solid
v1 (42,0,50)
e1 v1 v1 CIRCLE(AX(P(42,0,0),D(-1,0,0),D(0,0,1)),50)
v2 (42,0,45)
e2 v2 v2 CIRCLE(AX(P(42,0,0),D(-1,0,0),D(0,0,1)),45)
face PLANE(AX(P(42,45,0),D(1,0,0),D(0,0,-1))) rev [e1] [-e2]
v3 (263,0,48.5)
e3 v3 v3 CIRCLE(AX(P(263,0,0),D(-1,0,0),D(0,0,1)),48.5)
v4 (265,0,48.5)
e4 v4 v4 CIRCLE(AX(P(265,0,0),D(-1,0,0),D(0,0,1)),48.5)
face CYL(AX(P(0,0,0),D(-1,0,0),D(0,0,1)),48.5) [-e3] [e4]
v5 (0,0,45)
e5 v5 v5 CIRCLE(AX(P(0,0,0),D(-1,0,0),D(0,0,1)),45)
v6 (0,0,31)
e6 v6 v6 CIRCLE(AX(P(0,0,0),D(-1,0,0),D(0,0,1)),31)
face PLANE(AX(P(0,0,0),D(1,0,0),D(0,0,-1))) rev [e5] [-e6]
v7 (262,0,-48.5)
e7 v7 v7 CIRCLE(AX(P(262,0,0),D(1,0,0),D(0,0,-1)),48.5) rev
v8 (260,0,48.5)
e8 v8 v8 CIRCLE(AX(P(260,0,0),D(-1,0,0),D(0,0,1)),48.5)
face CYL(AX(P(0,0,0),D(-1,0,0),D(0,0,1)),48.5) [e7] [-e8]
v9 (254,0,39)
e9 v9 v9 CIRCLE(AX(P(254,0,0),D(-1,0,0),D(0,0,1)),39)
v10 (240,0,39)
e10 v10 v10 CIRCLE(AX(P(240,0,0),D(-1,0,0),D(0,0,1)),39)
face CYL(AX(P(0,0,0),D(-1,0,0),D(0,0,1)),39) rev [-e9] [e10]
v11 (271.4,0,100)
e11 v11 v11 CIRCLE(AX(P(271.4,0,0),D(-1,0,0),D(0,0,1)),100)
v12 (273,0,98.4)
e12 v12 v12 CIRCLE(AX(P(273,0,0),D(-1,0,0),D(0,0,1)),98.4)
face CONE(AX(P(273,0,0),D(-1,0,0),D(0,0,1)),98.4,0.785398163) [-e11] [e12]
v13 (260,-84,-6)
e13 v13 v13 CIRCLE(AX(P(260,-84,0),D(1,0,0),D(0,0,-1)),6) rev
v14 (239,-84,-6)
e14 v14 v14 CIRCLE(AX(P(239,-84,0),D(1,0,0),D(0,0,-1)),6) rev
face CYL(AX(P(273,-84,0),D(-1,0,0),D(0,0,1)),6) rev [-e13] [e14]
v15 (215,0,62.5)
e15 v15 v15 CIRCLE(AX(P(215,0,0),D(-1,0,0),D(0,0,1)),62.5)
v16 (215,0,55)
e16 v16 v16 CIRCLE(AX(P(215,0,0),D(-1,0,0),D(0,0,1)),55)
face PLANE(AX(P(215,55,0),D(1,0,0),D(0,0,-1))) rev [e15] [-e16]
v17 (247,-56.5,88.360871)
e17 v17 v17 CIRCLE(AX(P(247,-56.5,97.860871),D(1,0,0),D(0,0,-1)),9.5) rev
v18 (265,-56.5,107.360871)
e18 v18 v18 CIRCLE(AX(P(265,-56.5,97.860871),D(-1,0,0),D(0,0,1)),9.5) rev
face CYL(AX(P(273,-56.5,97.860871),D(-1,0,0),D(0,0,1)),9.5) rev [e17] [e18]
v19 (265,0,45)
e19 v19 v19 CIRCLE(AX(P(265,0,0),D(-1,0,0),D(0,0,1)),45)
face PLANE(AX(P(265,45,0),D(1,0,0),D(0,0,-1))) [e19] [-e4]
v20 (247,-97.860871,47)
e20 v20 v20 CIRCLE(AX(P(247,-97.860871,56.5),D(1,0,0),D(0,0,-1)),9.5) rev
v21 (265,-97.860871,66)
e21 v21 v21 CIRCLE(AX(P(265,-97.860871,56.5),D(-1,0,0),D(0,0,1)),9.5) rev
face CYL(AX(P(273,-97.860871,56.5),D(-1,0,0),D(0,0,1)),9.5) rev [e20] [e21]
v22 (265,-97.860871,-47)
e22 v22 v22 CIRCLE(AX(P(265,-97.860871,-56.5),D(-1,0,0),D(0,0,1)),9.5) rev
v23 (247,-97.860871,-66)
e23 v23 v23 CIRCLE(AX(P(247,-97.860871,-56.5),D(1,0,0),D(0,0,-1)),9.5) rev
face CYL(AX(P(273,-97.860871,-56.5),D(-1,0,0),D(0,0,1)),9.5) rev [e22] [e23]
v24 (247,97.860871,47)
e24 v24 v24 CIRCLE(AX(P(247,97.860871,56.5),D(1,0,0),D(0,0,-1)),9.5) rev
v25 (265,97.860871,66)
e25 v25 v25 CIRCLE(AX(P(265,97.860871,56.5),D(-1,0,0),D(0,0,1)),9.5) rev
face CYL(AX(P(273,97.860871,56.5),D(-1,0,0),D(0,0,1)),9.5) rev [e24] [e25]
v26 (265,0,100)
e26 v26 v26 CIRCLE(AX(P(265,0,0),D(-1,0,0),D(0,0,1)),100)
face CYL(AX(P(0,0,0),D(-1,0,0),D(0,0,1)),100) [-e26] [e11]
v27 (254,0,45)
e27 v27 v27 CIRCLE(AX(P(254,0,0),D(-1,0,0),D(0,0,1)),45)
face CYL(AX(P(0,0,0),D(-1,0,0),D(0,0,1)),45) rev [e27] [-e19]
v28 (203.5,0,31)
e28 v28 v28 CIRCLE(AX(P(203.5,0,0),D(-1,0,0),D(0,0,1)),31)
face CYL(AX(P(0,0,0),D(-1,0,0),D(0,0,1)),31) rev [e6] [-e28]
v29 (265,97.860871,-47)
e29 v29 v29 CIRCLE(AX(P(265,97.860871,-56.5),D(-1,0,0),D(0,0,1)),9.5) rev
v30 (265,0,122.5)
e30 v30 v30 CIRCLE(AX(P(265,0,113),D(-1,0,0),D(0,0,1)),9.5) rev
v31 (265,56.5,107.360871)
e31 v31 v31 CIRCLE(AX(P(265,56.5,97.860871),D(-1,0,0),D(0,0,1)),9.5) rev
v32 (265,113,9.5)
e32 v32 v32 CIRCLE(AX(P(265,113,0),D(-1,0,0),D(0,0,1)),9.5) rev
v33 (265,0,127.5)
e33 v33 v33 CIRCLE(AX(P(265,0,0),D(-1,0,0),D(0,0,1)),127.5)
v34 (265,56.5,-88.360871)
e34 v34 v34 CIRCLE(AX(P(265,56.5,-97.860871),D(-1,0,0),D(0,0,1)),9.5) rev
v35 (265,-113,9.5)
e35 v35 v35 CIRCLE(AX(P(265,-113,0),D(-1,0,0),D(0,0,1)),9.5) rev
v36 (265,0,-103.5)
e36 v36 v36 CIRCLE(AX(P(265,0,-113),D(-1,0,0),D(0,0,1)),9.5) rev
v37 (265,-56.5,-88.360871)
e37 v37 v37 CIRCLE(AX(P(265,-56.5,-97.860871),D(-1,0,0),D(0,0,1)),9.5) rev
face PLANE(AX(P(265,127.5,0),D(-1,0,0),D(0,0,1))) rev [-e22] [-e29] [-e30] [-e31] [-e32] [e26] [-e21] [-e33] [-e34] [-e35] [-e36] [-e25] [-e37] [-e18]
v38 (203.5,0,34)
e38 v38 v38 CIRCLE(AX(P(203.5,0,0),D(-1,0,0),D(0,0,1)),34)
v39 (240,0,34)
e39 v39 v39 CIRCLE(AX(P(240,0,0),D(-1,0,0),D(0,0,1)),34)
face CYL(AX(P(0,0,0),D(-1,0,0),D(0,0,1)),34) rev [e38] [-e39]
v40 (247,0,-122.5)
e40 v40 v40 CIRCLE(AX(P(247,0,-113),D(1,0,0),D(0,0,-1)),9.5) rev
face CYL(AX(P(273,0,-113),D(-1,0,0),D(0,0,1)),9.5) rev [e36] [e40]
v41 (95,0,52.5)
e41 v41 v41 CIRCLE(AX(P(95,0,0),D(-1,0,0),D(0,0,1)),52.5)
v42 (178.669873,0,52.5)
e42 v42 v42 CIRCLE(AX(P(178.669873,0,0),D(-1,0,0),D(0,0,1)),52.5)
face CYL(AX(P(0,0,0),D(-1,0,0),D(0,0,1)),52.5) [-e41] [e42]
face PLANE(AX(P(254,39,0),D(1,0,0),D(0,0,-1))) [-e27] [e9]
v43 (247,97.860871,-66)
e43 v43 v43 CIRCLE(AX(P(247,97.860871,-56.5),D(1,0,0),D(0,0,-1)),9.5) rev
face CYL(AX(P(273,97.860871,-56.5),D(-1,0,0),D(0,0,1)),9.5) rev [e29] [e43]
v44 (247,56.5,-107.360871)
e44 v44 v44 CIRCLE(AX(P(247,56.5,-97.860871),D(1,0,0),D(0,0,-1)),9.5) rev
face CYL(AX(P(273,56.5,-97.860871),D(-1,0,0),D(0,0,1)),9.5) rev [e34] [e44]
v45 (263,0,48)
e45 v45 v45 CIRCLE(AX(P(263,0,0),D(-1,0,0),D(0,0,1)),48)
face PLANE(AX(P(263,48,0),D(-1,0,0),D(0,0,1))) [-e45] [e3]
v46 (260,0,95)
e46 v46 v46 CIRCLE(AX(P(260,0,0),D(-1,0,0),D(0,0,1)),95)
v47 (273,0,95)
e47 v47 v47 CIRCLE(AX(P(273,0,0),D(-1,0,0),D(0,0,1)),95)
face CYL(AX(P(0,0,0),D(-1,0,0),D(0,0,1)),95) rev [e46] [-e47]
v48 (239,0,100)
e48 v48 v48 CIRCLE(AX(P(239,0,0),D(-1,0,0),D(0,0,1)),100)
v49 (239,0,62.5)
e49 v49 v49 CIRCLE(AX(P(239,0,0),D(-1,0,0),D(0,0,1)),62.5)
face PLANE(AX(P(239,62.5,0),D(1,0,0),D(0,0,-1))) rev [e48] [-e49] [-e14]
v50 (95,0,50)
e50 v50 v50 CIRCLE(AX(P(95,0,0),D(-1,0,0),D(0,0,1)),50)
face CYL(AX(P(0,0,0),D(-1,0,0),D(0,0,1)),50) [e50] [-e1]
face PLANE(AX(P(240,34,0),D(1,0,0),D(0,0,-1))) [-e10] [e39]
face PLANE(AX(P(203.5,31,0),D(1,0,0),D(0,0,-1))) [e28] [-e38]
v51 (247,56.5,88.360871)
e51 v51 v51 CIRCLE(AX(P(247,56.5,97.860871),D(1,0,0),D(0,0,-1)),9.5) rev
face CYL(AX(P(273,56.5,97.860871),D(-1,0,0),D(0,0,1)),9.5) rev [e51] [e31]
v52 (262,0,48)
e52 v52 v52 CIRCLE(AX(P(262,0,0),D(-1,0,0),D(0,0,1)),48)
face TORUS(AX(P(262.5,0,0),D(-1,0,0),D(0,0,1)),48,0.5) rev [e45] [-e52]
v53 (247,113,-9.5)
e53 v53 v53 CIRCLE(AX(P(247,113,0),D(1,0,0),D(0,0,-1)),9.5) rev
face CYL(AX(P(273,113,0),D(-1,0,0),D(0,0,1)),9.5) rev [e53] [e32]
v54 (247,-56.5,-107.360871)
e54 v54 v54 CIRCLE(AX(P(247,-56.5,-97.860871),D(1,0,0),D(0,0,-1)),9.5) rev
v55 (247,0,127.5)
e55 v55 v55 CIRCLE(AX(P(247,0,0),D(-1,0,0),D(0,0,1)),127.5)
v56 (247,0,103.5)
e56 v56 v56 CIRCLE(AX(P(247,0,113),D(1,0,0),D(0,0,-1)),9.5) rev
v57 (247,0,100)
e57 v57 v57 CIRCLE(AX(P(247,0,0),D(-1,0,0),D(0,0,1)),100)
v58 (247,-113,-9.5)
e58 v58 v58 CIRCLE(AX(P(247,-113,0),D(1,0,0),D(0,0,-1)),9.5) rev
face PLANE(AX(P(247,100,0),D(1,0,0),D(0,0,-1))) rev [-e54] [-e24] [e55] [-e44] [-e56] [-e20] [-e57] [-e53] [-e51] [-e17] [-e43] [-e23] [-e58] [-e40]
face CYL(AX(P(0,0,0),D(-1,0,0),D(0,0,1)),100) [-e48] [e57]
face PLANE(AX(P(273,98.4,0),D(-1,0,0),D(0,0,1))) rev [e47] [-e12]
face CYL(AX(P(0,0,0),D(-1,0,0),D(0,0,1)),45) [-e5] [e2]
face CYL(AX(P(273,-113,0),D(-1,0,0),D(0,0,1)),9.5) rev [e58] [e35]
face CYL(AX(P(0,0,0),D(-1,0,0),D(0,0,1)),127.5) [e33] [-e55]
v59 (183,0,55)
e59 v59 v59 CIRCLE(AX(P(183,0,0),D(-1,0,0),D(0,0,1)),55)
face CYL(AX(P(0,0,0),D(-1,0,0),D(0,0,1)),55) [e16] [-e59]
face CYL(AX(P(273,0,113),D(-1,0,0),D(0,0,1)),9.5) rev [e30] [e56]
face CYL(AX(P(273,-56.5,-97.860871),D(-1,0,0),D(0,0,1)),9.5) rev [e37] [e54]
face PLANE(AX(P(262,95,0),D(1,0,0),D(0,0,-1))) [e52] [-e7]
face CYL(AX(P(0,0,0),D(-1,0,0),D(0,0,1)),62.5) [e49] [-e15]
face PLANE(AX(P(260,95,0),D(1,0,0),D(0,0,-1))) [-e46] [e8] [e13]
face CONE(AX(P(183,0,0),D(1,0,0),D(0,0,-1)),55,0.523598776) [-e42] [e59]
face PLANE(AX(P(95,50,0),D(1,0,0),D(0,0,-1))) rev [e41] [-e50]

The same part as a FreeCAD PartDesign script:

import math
import FreeCAD as App
import Part
import Sketcher
from FreeCAD import Vector
Q = App.Units.Quantity

doc = App.newDocument("Part")
body = doc.addObject("PartDesign::Body", "Body")

# Sketch on XY plane
sketch1 = doc.addObject("Sketcher::SketchObject", "Sketch")
body.addObject(sketch1)
sketch1.AttachmentSupport = (doc.XY_Plane, [""])
sketch1.MapMode = "FlatFace"
sketch1.addGeometry([
    Part.LineSegment(Vector(0, 0, 0), Vector(273, 0, 0)),  # 0
    Part.LineSegment(Vector(273, 0, 0), Vector(273, 98.4, 0)),  # 1
    Part.LineSegment(Vector(273, 98.4, 0), Vector(271.4, 100, 0)),  # 2
    Part.LineSegment(Vector(271.4, 100, 0), Vector(265, 100, 0)),  # 3
    Part.LineSegment(Vector(265, 100, 0), Vector(265, 127.5, 0)),  # 4
    Part.LineSegment(Vector(265, 127.5, 0), Vector(247, 127.5, 0)),  # 5
    Part.LineSegment(Vector(247, 127.5, 0), Vector(247, 100, 0)),  # 6
    Part.LineSegment(Vector(247, 100, 0), Vector(239, 100, 0)),  # 7
    Part.LineSegment(Vector(239, 100, 0), Vector(239, 62.5, 0)),  # 8
    Part.LineSegment(Vector(239, 62.5, 0), Vector(215, 62.5, 0)),  # 9
    Part.LineSegment(Vector(215, 62.5, 0), Vector(215, 55, 0)),  # 10
    Part.LineSegment(Vector(215, 55, 0), Vector(183, 55, 0)),  # 11
    Part.LineSegment(Vector(183, 55, 0), Vector(178.7, 52.5, 0)),  # 12
    Part.LineSegment(Vector(178.7, 52.5, 0), Vector(95, 52.5, 0)),  # 13
    Part.LineSegment(Vector(95, 52.5, 0), Vector(95, 50, 0)),  # 14
    Part.LineSegment(Vector(95, 50, 0), Vector(42, 50, 0)),  # 15
    Part.LineSegment(Vector(42, 50, 0), Vector(42, 45, 0)),  # 16
    Part.LineSegment(Vector(42, 45, 0), Vector(0, 45, 0)),  # 17
    Part.LineSegment(Vector(0, 45, 0), Vector(0, 0, 0)),  # 18
], False)
sketch1.addConstraint([
    Sketcher.Constraint("Coincident", 0, 2, 1, 1),
    Sketcher.Constraint("Coincident", 1, 2, 2, 1),
    Sketcher.Constraint("Coincident", 2, 2, 3, 1),
    Sketcher.Constraint("Coincident", 3, 2, 4, 1),
    Sketcher.Constraint("Coincident", 4, 2, 5, 1),
    Sketcher.Constraint("Coincident", 5, 2, 6, 1),
    Sketcher.Constraint("Coincident", 6, 2, 7, 1),
    Sketcher.Constraint("Coincident", 7, 2, 8, 1),
    Sketcher.Constraint("Coincident", 8, 2, 9, 1),
    Sketcher.Constraint("Coincident", 9, 2, 10, 1),
    Sketcher.Constraint("Coincident", 10, 2, 11, 1),
    Sketcher.Constraint("Coincident", 11, 2, 12, 1),
    Sketcher.Constraint("Coincident", 12, 2, 13, 1),
    Sketcher.Constraint("Coincident", 13, 2, 14, 1),
    Sketcher.Constraint("Coincident", 14, 2, 15, 1),
    Sketcher.Constraint("Coincident", 15, 2, 16, 1),
    Sketcher.Constraint("Coincident", 16, 2, 17, 1),
    Sketcher.Constraint("Coincident", 17, 2, 18, 1),
    Sketcher.Constraint("Coincident", 18, 2, 0, 1),
    Sketcher.Constraint("Horizontal", 0),
    Sketcher.Constraint("Vertical", 1),
    Sketcher.Constraint("Horizontal", 3),
    Sketcher.Constraint("Vertical", 4),
    Sketcher.Constraint("Horizontal", 5),
    Sketcher.Constraint("Vertical", 6),
    Sketcher.Constraint("Horizontal", 7),
    Sketcher.Constraint("Vertical", 8),
    Sketcher.Constraint("Horizontal", 9),
    Sketcher.Constraint("Vertical", 10),
    Sketcher.Constraint("Horizontal", 11),
    Sketcher.Constraint("Horizontal", 13),
    Sketcher.Constraint("Vertical", 14),
    Sketcher.Constraint("Horizontal", 15),
    Sketcher.Constraint("Vertical", 16),
    Sketcher.Constraint("Horizontal", 17),
    Sketcher.Constraint("Vertical", 18),
    Sketcher.Constraint("Coincident", 18, 2, -1, 1),
    Sketcher.Constraint("Horizontal", 3, 2, 6, 2),
    Sketcher.Constraint("DistanceX", 0, 1, 0, 2, Q("273 mm")),
    Sketcher.Constraint("DistanceX", 5, 2, 5, 1, Q("18 mm")),
    Sketcher.Constraint("DistanceX", 7, 2, 7, 1, Q("8 mm")),
    Sketcher.Constraint("DistanceX", 9, 2, 9, 1, Q("24 mm")),
    Sketcher.Constraint("DistanceX", 11, 2, 11, 1, Q("32 mm")),
    Sketcher.Constraint("DistanceX", 15, 2, 15, 1, Q("53 mm")),
    Sketcher.Constraint("DistanceX", 17, 2, 17, 1, Q("42 mm")),
    Sketcher.Constraint("DistanceY", 16, 2, 16, 1, Q("5 mm")),
    Sketcher.Constraint("DistanceY", 18, 2, 18, 1, Q("45 mm")),
    Sketcher.Constraint("Angle", 2, Q("135 deg")),
    Sketcher.Constraint("Angle", 12, Q("-150 deg")),
    Sketcher.Constraint("Distance", 12, Q("5 mm")),
    Sketcher.Constraint("DistanceX", 3, 2, 3, 1, Q("6.4 mm")),
    Sketcher.Constraint("DistanceY", 1, 1, 1, 2, Q("98.4 mm")),
    Sketcher.Constraint("DistanceY", 4, 1, 4, 2, Q("27.5 mm")),
    Sketcher.Constraint("DistanceY", 8, 2, 8, 1, Q("37.5 mm")),
    Sketcher.Constraint("DistanceY", 10, 2, 10, 1, Q("7.5 mm")),
    Sketcher.Constraint("DistanceY", 14, 2, 14, 1, Q("2.5 mm")),
])
revolution = doc.addObject("PartDesign::Revolution", "Revolution")
body.addObject(revolution)
revolution.Profile = sketch1
revolution.ReferenceAxis = (sketch1, ["H_Axis"])
revolution.Angle = 360

# Sketch on XY plane
sketch2 = doc.addObject("Sketcher::SketchObject", "Sketch001")
body.addObject(sketch2)
sketch2.AttachmentSupport = (doc.XY_Plane, [""])
sketch2.MapMode = "FlatFace"
sketch2.addGeometry([
    Part.LineSegment(Vector(0, 0, 0), Vector(273, 0, 0)),  # 0
    Part.LineSegment(Vector(273, 0, 0), Vector(273, 95, 0)),  # 1
    Part.LineSegment(Vector(273, 95, 0), Vector(265, 95, 0)),  # 2
    Part.LineSegment(Vector(265, 95, 0), Vector(265, 45, 0)),  # 3
    Part.LineSegment(Vector(265, 45, 0), Vector(254, 45, 0)),  # 4
    Part.LineSegment(Vector(254, 45, 0), Vector(254, 39, 0)),  # 5
    Part.LineSegment(Vector(254, 39, 0), Vector(240, 39, 0)),  # 6
    Part.LineSegment(Vector(240, 39, 0), Vector(240, 34, 0)),  # 7
    Part.LineSegment(Vector(240, 34, 0), Vector(203.5, 34, 0)),  # 8
    Part.LineSegment(Vector(203.5, 34, 0), Vector(203.5, 31, 0)),  # 9
    Part.LineSegment(Vector(203.5, 31, 0), Vector(0, 31, 0)),  # 10
    Part.LineSegment(Vector(0, 31, 0), Vector(0, 0, 0)),  # 11
], False)
sketch2.addConstraint([
    Sketcher.Constraint("Coincident", 0, 2, 1, 1),
    Sketcher.Constraint("Coincident", 1, 2, 2, 1),
    Sketcher.Constraint("Coincident", 2, 2, 3, 1),
    Sketcher.Constraint("Coincident", 3, 2, 4, 1),
    Sketcher.Constraint("Coincident", 4, 2, 5, 1),
    Sketcher.Constraint("Coincident", 5, 2, 6, 1),
    Sketcher.Constraint("Coincident", 6, 2, 7, 1),
    Sketcher.Constraint("Coincident", 7, 2, 8, 1),
    Sketcher.Constraint("Coincident", 8, 2, 9, 1),
    Sketcher.Constraint("Coincident", 9, 2, 10, 1),
    Sketcher.Constraint("Coincident", 10, 2, 11, 1),
    Sketcher.Constraint("Coincident", 11, 2, 0, 1),
    Sketcher.Constraint("Horizontal", 0),
    Sketcher.Constraint("Vertical", 1),
    Sketcher.Constraint("Horizontal", 2),
    Sketcher.Constraint("Vertical", 3),
    Sketcher.Constraint("Horizontal", 4),
    Sketcher.Constraint("Vertical", 5),
    Sketcher.Constraint("Horizontal", 6),
    Sketcher.Constraint("Vertical", 7),
    Sketcher.Constraint("Horizontal", 8),
    Sketcher.Constraint("Vertical", 9),
    Sketcher.Constraint("Horizontal", 10),
    Sketcher.Constraint("Vertical", 11),
    Sketcher.Constraint("Coincident", 11, 2, -1, 1),
    Sketcher.Constraint("DistanceX", 0, 1, 0, 2, Q("273 mm")),
    Sketcher.Constraint("DistanceX", 2, 2, 2, 1, Q("8 mm")),
    Sketcher.Constraint("DistanceX", 4, 2, 4, 1, Q("11 mm")),
    Sketcher.Constraint("DistanceX", 6, 2, 6, 1, Q("14 mm")),
    Sketcher.Constraint("DistanceY", 1, 1, 1, 2, Q("95 mm")),
    Sketcher.Constraint("DistanceY", 3, 2, 3, 1, Q("50 mm")),
    Sketcher.Constraint("DistanceY", 5, 2, 5, 1, Q("6 mm")),
    Sketcher.Constraint("DistanceY", 7, 2, 7, 1, Q("5 mm")),
    Sketcher.Constraint("DistanceY", 9, 2, 9, 1, Q("3 mm")),
    Sketcher.Constraint("DistanceX", 8, 2, 8, 1, Q("36.5 mm")),
])
groove = doc.addObject("PartDesign::Groove", "Groove")
body.addObject(groove)
groove.Profile = sketch2
groove.ReferenceAxis = (sketch2, ["H_Axis"])
groove.Angle = 360

# Sketch on XY plane
sketch3 = doc.addObject("Sketcher::SketchObject", "Sketch002")
body.addObject(sketch3)
sketch3.AttachmentSupport = (doc.XY_Plane, [""])
sketch3.MapMode = "FlatFace"
sketch3.addGeometry([
    Part.LineSegment(Vector(260, 95, 0), Vector(260, 48.5, 0)),
    Part.LineSegment(Vector(260, 48.5, 0), Vector(262, 48.5, 0)),
    Part.LineSegment(Vector(262, 48.5, 0), Vector(262, 95, 0)),
    Part.LineSegment(Vector(262, 95, 0), Vector(260, 95, 0)),
], False)
sketch3.addConstraint([
    Sketcher.Constraint("Coincident", 0, 2, 1, 1),
    Sketcher.Constraint("Coincident", 1, 2, 2, 1),
    Sketcher.Constraint("Coincident", 2, 2, 3, 1),
    Sketcher.Constraint("Coincident", 3, 2, 0, 1),
    Sketcher.Constraint("Vertical", 0),
    Sketcher.Constraint("Horizontal", 1),
    Sketcher.Constraint("Vertical", 2),
    Sketcher.Constraint("Horizontal", 3),
    Sketcher.Constraint("DistanceX", 1, 1, 1, 2, Q("2 mm")),
    Sketcher.Constraint("DistanceY", 0, 2, 0, 1, Q("46.5 mm")),
    Sketcher.Constraint("DistanceX", -1, 1, 0, 2, Q("260 mm")),
    Sketcher.Constraint("DistanceY", -1, 1, 2, 2, Q("95 mm")),
])
groove2 = doc.addObject("PartDesign::Groove", "Groove001")
body.addObject(groove2)
groove2.Profile = sketch3
groove2.ReferenceAxis = (sketch3, ["H_Axis"])
groove2.Angle = 360

# Sketch on XY plane
sketch4 = doc.addObject("Sketcher::SketchObject", "Sketch003")
body.addObject(sketch4)
sketch4.AttachmentSupport = (doc.XY_Plane, [""])
sketch4.MapMode = "FlatFace"
sketch4.addGeometry([
    Part.LineSegment(Vector(263, 48, 0), Vector(263, 95, 0)),  # 0
    Part.LineSegment(Vector(263, 95, 0), Vector(262, 95, 0)),  # 1
    Part.LineSegment(Vector(262, 95, 0), Vector(262, 48, 0)),  # 2
    Part.ArcOfCircle(Part.Circle(Vector(262.5, 48, 0), Vector(0, 0, 1), 0.5), math.radians(180), math.radians(270)),  # 3
    Part.ArcOfCircle(Part.Circle(Vector(262.5, 48, 0), Vector(0, 0, 1), 0.5), math.radians(-90), math.radians(0)),  # 4
], False)
sketch4.addConstraint([
    Sketcher.Constraint("Coincident", 0, 2, 1, 1),
    Sketcher.Constraint("Coincident", 1, 2, 2, 1),
    Sketcher.Constraint("Tangent", 2, 2, 3, 1),
    Sketcher.Constraint("Tangent", 3, 2, 4, 1),
    Sketcher.Constraint("Tangent", 4, 2, 0, 1),
    Sketcher.Constraint("Vertical", 0),
    Sketcher.Constraint("Horizontal", 1),
    Sketcher.Constraint("Vertical", 2),
    Sketcher.Constraint("Equal", 3, 4),
    Sketcher.Constraint("Vertical", 4, 3, 3, 2),
    Sketcher.Constraint("Radius", 3, Q("0.5 mm")),
    Sketcher.Constraint("DistanceY", 0, 1, 0, 2, Q("47 mm")),
    Sketcher.Constraint("DistanceY", -1, 1, 3, 3, Q("48 mm")),
    Sketcher.Constraint("DistanceX", -1, 1, 0, 2, Q("263 mm")),
])
groove3 = doc.addObject("PartDesign::Groove", "Groove002")
body.addObject(groove3)
groove3.Profile = sketch4
groove3.ReferenceAxis = (sketch4, ["H_Axis"])
groove3.Angle = 360

# Sketch on XY plane
sketch5 = doc.addObject("Sketcher::SketchObject", "Sketch004")
body.addObject(sketch5)
sketch5.AttachmentSupport = (doc.XY_Plane, [""])
sketch5.MapMode = "FlatFace"
sketch5.addGeometry([
    Part.LineSegment(Vector(263, 95, 0), Vector(263, 48.5, 0)),
    Part.LineSegment(Vector(263, 48.5, 0), Vector(265, 48.5, 0)),
    Part.LineSegment(Vector(265, 48.5, 0), Vector(265, 95, 0)),
    Part.LineSegment(Vector(265, 95, 0), Vector(263, 95, 0)),
], False)
sketch5.addConstraint([
    Sketcher.Constraint("Coincident", 0, 2, 1, 1),
    Sketcher.Constraint("Coincident", 1, 2, 2, 1),
    Sketcher.Constraint("Coincident", 2, 2, 3, 1),
    Sketcher.Constraint("Coincident", 3, 2, 0, 1),
    Sketcher.Constraint("Vertical", 0),
    Sketcher.Constraint("Horizontal", 1),
    Sketcher.Constraint("Vertical", 2),
    Sketcher.Constraint("Horizontal", 3),
    Sketcher.Constraint("DistanceX", 1, 1, 1, 2, Q("2 mm")),
    Sketcher.Constraint("DistanceY", 0, 2, 0, 1, Q("46.5 mm")),
    Sketcher.Constraint("DistanceX", -1, 1, 0, 2, Q("263 mm")),
    Sketcher.Constraint("DistanceY", -1, 1, 2, 2, Q("95 mm")),
])
groove4 = doc.addObject("PartDesign::Groove", "Groove003")
body.addObject(groove4)
groove4.Profile = sketch5
groove4.ReferenceAxis = (sketch5, ["H_Axis"])
groove4.Angle = 360

# Sketch on YZ plane
sketch6 = doc.addObject("Sketcher::SketchObject", "Sketch005")
body.addObject(sketch6)
sketch6.AttachmentSupport = (doc.YZ_Plane, [""])
sketch6.MapMode = "FlatFace"
sketch6.addGeometry(Part.Circle(Vector(113, 0, 0), Vector(0, 0, 1), 10), False)
sketch6.addConstraint([
    Sketcher.Constraint("PointOnObject", 0, 3, -1),
    Sketcher.Constraint("Diameter", 0, Q("19 mm")),
    Sketcher.Constraint("DistanceX", -1, 1, 0, 3, Q("113 mm")),
])
pocket1 = doc.addObject("PartDesign::Pocket", "Pocket")
body.addObject(pocket1)
pocket1.Profile = sketch6
pocket1.Type = "ThroughAll"
pocket1.Reversed = True

# Sketch on YZ plane
sketch7 = doc.addObject("Sketcher::SketchObject", "Sketch006")
body.addObject(sketch7)
sketch7.AttachmentSupport = (doc.YZ_Plane, [""])
sketch7.MapMode = "FlatFace"
sketch7.addGeometry(Part.Circle(Vector(98, 56, 0), Vector(0, 0, 1), 10), False)
sketch7.addConstraint([
    Sketcher.Constraint("Diameter", 0, Q("19 mm")),
    Sketcher.Constraint("DistanceY", -1, 1, 0, 3, Q("56.5 mm")),
    Sketcher.Constraint("DistanceX", -1, 1, 0, 3, Q("97.860871 mm")),
])
pocket2 = doc.addObject("PartDesign::Pocket", "Pocket001")
body.addObject(pocket2)
pocket2.Profile = sketch7
pocket2.Type = "ThroughAll"
pocket2.Reversed = True

# Sketch on YZ plane
sketch8 = doc.addObject("Sketcher::SketchObject", "Sketch007")
body.addObject(sketch8)
sketch8.AttachmentSupport = (doc.YZ_Plane, [""])
sketch8.MapMode = "FlatFace"
sketch8.addGeometry(Part.Circle(Vector(56, 98, 0), Vector(0, 0, 1), 10), False)
sketch8.addConstraint([
    Sketcher.Constraint("Diameter", 0, Q("19 mm")),
    Sketcher.Constraint("DistanceX", -1, 1, 0, 3, Q("56.5 mm")),
    Sketcher.Constraint("DistanceY", -1, 1, 0, 3, Q("97.860871 mm")),
])
pocket3 = doc.addObject("PartDesign::Pocket", "Pocket002")
body.addObject(pocket3)
pocket3.Profile = sketch8
pocket3.Type = "ThroughAll"
pocket3.Reversed = True

# Sketch on YZ plane
sketch9 = doc.addObject("Sketcher::SketchObject", "Sketch008")
body.addObject(sketch9)
sketch9.AttachmentSupport = (doc.YZ_Plane, [""])
sketch9.MapMode = "FlatFace"
sketch9.addGeometry(Part.Circle(Vector(0, 113, 0), Vector(0, 0, 1), 10), False)
sketch9.addConstraint([
    Sketcher.Constraint("PointOnObject", 0, 3, -2),
    Sketcher.Constraint("Diameter", 0, Q("19 mm")),
    Sketcher.Constraint("DistanceY", -1, 1, 0, 3, Q("113 mm")),
])
pocket4 = doc.addObject("PartDesign::Pocket", "Pocket003")
body.addObject(pocket4)
pocket4.Profile = sketch9
pocket4.Type = "ThroughAll"
pocket4.Reversed = True

# Sketch on YZ plane
sketch10 = doc.addObject("Sketcher::SketchObject", "Sketch009")
body.addObject(sketch10)
sketch10.AttachmentSupport = (doc.YZ_Plane, [""])
sketch10.MapMode = "FlatFace"
sketch10.addGeometry(Part.Circle(Vector(-56, 98, 0), Vector(0, 0, 1), 10), False)
sketch10.addConstraint([
    Sketcher.Constraint("Diameter", 0, Q("19 mm")),
    Sketcher.Constraint("DistanceX", 0, 3, -1, 1, Q("56.5 mm")),
    Sketcher.Constraint("DistanceY", -1, 1, 0, 3, Q("97.860871 mm")),
])
pocket5 = doc.addObject("PartDesign::Pocket", "Pocket004")
body.addObject(pocket5)
pocket5.Profile = sketch10
pocket5.Type = "ThroughAll"
pocket5.Reversed = True

# Sketch on YZ plane
sketch11 = doc.addObject("Sketcher::SketchObject", "Sketch010")
body.addObject(sketch11)
sketch11.AttachmentSupport = (doc.YZ_Plane, [""])
sketch11.MapMode = "FlatFace"
sketch11.addGeometry(Part.Circle(Vector(-98, 56, 0), Vector(0, 0, 1), 10), False)
sketch11.addConstraint([
    Sketcher.Constraint("Diameter", 0, Q("19 mm")),
    Sketcher.Constraint("DistanceY", -1, 1, 0, 3, Q("56.5 mm")),
    Sketcher.Constraint("DistanceX", 0, 3, -1, 1, Q("97.860871 mm")),
])
pocket6 = doc.addObject("PartDesign::Pocket", "Pocket005")
body.addObject(pocket6)
pocket6.Profile = sketch11
pocket6.Type = "ThroughAll"
pocket6.Reversed = True

# Sketch on YZ plane
sketch12 = doc.addObject("Sketcher::SketchObject", "Sketch011")
body.addObject(sketch12)
sketch12.AttachmentSupport = (doc.YZ_Plane, [""])
sketch12.MapMode = "FlatFace"
sketch12.addGeometry(Part.Circle(Vector(-113, 0, 0), Vector(0, 0, 1), 10), False)
sketch12.addConstraint([
    Sketcher.Constraint("PointOnObject", 0, 3, -1),
    Sketcher.Constraint("Diameter", 0, Q("19 mm")),
    Sketcher.Constraint("DistanceX", 0, 3, -1, 1, Q("113 mm")),
])
pocket7 = doc.addObject("PartDesign::Pocket", "Pocket006")
body.addObject(pocket7)
pocket7.Profile = sketch12
pocket7.Type = "ThroughAll"
pocket7.Reversed = True

# Sketch on YZ plane
sketch13 = doc.addObject("Sketcher::SketchObject", "Sketch012")
body.addObject(sketch13)
sketch13.AttachmentSupport = (doc.YZ_Plane, [""])
sketch13.MapMode = "FlatFace"
sketch13.addGeometry(Part.Circle(Vector(-98, -56, 0), Vector(0, 0, 1), 10), False)
sketch13.addConstraint([
    Sketcher.Constraint("Diameter", 0, Q("19 mm")),
    Sketcher.Constraint("DistanceY", 0, 3, -1, 1, Q("56.5 mm")),
    Sketcher.Constraint("DistanceX", 0, 3, -1, 1, Q("97.860871 mm")),
])
pocket8 = doc.addObject("PartDesign::Pocket", "Pocket007")
body.addObject(pocket8)
pocket8.Profile = sketch13
pocket8.Type = "ThroughAll"
pocket8.Reversed = True

# Sketch on YZ plane
sketch14 = doc.addObject("Sketcher::SketchObject", "Sketch013")
body.addObject(sketch14)
sketch14.AttachmentSupport = (doc.YZ_Plane, [""])
sketch14.MapMode = "FlatFace"
sketch14.addGeometry(Part.Circle(Vector(-56, -98, 0), Vector(0, 0, 1), 10), False)
sketch14.addConstraint([
    Sketcher.Constraint("Diameter", 0, Q("19 mm")),
    Sketcher.Constraint("DistanceX", 0, 3, -1, 1, Q("56.5 mm")),
    Sketcher.Constraint("DistanceY", 0, 3, -1, 1, Q("97.860871 mm")),
])
pocket9 = doc.addObject("PartDesign::Pocket", "Pocket008")
body.addObject(pocket9)
pocket9.Profile = sketch14
pocket9.Type = "ThroughAll"
pocket9.Reversed = True

# Sketch on YZ plane
sketch15 = doc.addObject("Sketcher::SketchObject", "Sketch014")
body.addObject(sketch15)
sketch15.AttachmentSupport = (doc.YZ_Plane, [""])
sketch15.MapMode = "FlatFace"
sketch15.addGeometry(Part.Circle(Vector(0, -113, 0), Vector(0, 0, 1), 10), False)
sketch15.addConstraint([
    Sketcher.Constraint("PointOnObject", 0, 3, -2),
    Sketcher.Constraint("Diameter", 0, Q("19 mm")),
    Sketcher.Constraint("DistanceY", 0, 3, -1, 1, Q("113 mm")),
])
pocket10 = doc.addObject("PartDesign::Pocket", "Pocket009")
body.addObject(pocket10)
pocket10.Profile = sketch15
pocket10.Type = "ThroughAll"
pocket10.Reversed = True

# Sketch on YZ plane
sketch16 = doc.addObject("Sketcher::SketchObject", "Sketch015")
body.addObject(sketch16)
sketch16.AttachmentSupport = (doc.YZ_Plane, [""])
sketch16.MapMode = "FlatFace"
sketch16.addGeometry(Part.Circle(Vector(56, -98, 0), Vector(0, 0, 1), 10), False)
sketch16.addConstraint([
    Sketcher.Constraint("Diameter", 0, Q("19 mm")),
    Sketcher.Constraint("DistanceX", -1, 1, 0, 3, Q("56.5 mm")),
    Sketcher.Constraint("DistanceY", 0, 3, -1, 1, Q("97.860871 mm")),
])
pocket11 = doc.addObject("PartDesign::Pocket", "Pocket010")
body.addObject(pocket11)
pocket11.Profile = sketch16
pocket11.Type = "ThroughAll"
pocket11.Reversed = True

# Sketch on YZ plane
sketch17 = doc.addObject("Sketcher::SketchObject", "Sketch016")
body.addObject(sketch17)
sketch17.AttachmentSupport = (doc.YZ_Plane, [""])
sketch17.MapMode = "FlatFace"
sketch17.addGeometry(Part.Circle(Vector(98, -56, 0), Vector(0, 0, 1), 10), False)
sketch17.addConstraint([
    Sketcher.Constraint("Diameter", 0, Q("19 mm")),
    Sketcher.Constraint("DistanceY", 0, 3, -1, 1, Q("56.5 mm")),
    Sketcher.Constraint("DistanceX", -1, 1, 0, 3, Q("97.860871 mm")),
])
pocket12 = doc.addObject("PartDesign::Pocket", "Pocket011")
body.addObject(pocket12)
pocket12.Profile = sketch17
pocket12.Type = "ThroughAll"
pocket12.Reversed = True

# Sketch on YZ plane
sketch18 = doc.addObject("Sketcher::SketchObject", "Sketch017")
body.addObject(sketch18)
sketch18.AttachmentSupport = (doc.YZ_Plane, [""])
sketch18.MapMode = "FlatFace"
sketch18.addGeometry(Part.Circle(Vector(-84, 0, 0), Vector(0, 0, 1), 6), False)
sketch18.addConstraint([
    Sketcher.Constraint("PointOnObject", 0, 3, -1),
    Sketcher.Constraint("Diameter", 0, Q("12 mm")),
    Sketcher.Constraint("DistanceX", 0, 3, -1, 1, Q("84 mm")),
])
pocket13 = doc.addObject("PartDesign::Pocket", "Pocket012")
body.addObject(pocket13)
pocket13.Profile = sketch18
pocket13.Type = "ThroughAll"
pocket13.Reversed = True

doc.recompute()
